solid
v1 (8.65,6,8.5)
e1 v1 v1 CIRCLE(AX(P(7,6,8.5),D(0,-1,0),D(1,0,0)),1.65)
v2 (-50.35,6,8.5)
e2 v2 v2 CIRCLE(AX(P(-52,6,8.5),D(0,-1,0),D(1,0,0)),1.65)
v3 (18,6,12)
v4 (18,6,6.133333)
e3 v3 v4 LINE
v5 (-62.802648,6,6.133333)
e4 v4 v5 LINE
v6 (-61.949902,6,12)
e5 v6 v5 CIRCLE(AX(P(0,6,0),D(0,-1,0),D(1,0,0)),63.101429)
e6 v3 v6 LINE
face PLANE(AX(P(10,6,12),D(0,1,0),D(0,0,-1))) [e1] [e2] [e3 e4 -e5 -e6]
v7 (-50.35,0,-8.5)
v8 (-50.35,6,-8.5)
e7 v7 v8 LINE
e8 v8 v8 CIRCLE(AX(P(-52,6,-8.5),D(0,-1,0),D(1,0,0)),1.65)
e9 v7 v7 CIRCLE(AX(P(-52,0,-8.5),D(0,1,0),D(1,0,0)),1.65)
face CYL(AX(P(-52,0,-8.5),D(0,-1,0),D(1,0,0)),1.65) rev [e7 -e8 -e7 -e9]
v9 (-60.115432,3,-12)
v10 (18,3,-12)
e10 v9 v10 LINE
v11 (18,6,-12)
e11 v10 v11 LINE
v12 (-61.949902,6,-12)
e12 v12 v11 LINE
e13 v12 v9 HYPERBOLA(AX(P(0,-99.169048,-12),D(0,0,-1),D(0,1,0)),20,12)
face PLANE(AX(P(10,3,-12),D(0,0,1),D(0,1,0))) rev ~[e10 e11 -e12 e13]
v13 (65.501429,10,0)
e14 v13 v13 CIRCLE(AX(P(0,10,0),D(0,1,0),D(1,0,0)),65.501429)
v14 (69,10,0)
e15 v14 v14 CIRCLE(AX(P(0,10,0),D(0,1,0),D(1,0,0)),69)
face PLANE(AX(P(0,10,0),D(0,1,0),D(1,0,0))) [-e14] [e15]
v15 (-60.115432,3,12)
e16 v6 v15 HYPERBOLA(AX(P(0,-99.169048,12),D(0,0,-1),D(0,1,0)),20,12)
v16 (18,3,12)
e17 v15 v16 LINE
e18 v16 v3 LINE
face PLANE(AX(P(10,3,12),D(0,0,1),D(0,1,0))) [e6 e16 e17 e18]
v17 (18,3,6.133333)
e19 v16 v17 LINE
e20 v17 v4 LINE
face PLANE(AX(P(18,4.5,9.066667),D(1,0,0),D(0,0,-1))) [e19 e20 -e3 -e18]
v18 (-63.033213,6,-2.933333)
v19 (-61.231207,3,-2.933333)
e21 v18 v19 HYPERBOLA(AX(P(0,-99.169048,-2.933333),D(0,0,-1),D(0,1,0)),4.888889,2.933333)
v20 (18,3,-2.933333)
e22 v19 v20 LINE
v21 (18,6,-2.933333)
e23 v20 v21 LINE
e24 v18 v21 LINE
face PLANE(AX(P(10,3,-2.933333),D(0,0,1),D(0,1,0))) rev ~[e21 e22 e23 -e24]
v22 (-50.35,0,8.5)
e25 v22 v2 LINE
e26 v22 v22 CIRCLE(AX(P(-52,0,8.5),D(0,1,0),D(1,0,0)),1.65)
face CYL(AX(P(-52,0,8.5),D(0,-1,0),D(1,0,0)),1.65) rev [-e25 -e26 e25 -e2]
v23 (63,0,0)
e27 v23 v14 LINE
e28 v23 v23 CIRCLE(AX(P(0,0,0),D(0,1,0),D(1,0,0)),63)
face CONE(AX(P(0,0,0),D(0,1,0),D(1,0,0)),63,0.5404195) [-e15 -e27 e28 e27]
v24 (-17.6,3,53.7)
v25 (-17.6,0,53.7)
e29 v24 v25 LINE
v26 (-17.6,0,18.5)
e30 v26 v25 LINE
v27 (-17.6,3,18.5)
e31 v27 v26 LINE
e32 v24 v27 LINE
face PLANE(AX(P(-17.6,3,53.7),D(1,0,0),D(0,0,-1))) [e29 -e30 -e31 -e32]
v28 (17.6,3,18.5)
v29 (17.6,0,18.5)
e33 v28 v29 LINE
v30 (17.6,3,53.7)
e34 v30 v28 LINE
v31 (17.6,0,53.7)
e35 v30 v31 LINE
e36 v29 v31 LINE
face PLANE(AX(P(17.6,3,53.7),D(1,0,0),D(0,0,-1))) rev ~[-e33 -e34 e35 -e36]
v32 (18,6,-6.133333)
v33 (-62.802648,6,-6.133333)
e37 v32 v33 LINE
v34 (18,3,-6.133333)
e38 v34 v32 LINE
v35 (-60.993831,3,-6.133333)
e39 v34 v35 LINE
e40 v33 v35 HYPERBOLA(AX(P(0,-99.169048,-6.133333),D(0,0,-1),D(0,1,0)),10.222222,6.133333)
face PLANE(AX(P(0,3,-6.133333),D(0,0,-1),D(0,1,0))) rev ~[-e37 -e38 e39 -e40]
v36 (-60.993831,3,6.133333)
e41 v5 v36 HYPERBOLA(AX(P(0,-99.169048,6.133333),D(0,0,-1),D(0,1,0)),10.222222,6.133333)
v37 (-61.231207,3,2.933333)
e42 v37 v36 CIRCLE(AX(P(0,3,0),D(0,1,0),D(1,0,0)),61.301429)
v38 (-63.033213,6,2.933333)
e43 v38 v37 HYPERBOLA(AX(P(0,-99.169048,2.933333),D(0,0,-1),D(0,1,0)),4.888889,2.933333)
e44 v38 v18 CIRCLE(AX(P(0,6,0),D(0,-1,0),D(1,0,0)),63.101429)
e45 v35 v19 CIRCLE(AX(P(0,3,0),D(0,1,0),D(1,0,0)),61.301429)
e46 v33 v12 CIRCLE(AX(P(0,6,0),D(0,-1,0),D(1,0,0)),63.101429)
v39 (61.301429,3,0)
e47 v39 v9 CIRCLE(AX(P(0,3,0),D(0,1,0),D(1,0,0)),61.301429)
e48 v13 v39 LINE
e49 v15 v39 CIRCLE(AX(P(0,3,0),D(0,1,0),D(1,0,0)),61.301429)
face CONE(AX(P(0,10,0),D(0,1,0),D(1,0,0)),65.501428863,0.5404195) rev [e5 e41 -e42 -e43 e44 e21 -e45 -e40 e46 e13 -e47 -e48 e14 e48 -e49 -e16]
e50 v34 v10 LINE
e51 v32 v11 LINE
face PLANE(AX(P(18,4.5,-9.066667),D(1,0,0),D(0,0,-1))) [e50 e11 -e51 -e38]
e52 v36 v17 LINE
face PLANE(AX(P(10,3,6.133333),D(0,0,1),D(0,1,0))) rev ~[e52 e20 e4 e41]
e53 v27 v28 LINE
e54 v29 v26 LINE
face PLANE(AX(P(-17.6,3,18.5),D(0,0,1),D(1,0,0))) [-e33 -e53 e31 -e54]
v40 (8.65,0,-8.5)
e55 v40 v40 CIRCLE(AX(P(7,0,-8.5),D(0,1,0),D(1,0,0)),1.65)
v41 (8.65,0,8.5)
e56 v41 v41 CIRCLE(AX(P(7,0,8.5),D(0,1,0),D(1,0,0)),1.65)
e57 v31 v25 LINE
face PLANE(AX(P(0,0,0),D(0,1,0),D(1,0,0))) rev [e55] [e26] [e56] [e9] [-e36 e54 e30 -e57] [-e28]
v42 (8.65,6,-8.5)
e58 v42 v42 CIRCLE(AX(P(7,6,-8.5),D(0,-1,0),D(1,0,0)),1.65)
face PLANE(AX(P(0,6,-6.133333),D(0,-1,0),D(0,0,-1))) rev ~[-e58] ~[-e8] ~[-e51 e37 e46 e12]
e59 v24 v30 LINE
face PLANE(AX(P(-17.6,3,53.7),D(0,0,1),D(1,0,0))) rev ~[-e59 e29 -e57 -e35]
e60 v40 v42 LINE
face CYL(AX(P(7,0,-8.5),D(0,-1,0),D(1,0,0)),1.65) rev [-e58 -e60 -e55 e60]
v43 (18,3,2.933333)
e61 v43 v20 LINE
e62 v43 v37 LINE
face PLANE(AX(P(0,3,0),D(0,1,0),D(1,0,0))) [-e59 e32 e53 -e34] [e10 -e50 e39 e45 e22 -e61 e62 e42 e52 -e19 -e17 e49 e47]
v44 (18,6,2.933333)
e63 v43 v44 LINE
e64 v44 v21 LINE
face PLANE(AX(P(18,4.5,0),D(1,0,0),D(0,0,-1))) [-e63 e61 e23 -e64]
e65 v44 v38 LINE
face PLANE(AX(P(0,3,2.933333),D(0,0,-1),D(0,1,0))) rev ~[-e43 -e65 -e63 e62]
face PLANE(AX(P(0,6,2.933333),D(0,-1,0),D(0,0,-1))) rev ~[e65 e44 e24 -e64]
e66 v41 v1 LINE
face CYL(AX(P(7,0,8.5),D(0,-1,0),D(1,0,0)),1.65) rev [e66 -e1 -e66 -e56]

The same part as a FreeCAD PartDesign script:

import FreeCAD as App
import Part
import Sketcher


def add_polygon(sketch, points):
    """Adds a closed chain of lines whose ends are joined by coincident constraints."""
    first, n = sketch.GeometryCount, len(points)
    for a, b in zip(points, points[1:] + points[:1]):
        sketch.addGeometry(Part.LineSegment(App.Vector(*a, 0), App.Vector(*b, 0)), False)
    for i in range(n):
        sketch.addConstraint(Sketcher.Constraint("Coincident", first + i, 2, first + (i + 1) % n, 1))

doc = App.newDocument("Part")
body = doc.addObject("PartDesign::Body", "Body")

# Sketch on XY plane
sketch1 = body.newObject("Sketcher::SketchObject", "Sketch")
sketch1.AttachmentSupport = (doc.getObject("XY_Plane"), [""])
sketch1.MapMode = "FlatFace"
add_polygon(sketch1, [(0, 0), (63, 0), (69, 10), (65.5, 10), (61.3, 3), (0, 3)])  # lines 0-5
sketch1.addConstraint(Sketcher.Constraint("Horizontal", 0))
sketch1.addConstraint(Sketcher.Constraint("Horizontal", 2))
sketch1.addConstraint(Sketcher.Constraint("Horizontal", 4))
sketch1.addConstraint(Sketcher.Constraint("Vertical", 5))
sketch1.addConstraint(Sketcher.Constraint("Coincident", 5, 2, -1, 1))
sketch1.addConstraint(Sketcher.Constraint("Parallel", 1, 3))
sketch1.addConstraint(Sketcher.Constraint("DistanceX", 0, 1, 0, 2, 63.0))
sketch1.addConstraint(Sketcher.Constraint("DistanceY", 5, 2, 5, 1, 3.0))
sketch1.addConstraint(Sketcher.Constraint("DistanceX", -1, 1, 1, 2, 69.0))
sketch1.addConstraint(Sketcher.Constraint("DistanceY", -1, 1, 1, 2, 10.0))
sketch1.addConstraint(Sketcher.Constraint("DistanceX", 2, 2, 2, 1, 3.498571))
revolution = body.newObject("PartDesign::Revolution", "Revolution")
revolution.Profile = sketch1
revolution.ReferenceAxis = (sketch1, ["V_Axis"])
revolution.Angle = 360

# Sketch on XZ plane
sketch2 = body.newObject("Sketcher::SketchObject", "Sketch001")
sketch2.AttachmentSupport = (doc.getObject("XZ_Plane"), [""])
sketch2.MapMode = "FlatFace"
sketch2.AttachmentOffset = App.Placement(App.Vector(0, 0, -3), App.Rotation())
add_polygon(sketch2, [(-18, 18), (-18, 54), (18, 54), (18, 18)])  # lines 0-3
sketch2.addConstraint(Sketcher.Constraint("Vertical", 0))
sketch2.addConstraint(Sketcher.Constraint("Horizontal", 1))
sketch2.addConstraint(Sketcher.Constraint("Vertical", 2))
sketch2.addConstraint(Sketcher.Constraint("Horizontal", 3))
sketch2.addConstraint(Sketcher.Constraint("Equal", 3, 0))
sketch2.addConstraint(Sketcher.Constraint("DistanceX", 1, 1, 1, 2, 35.2))
sketch2.addConstraint(Sketcher.Constraint("DistanceX", 0, 2, -1, 1, 17.6))
sketch2.addConstraint(Sketcher.Constraint("DistanceY", -1, 1, 0, 2, 53.7))
pocket1 = body.newObject("PartDesign::Pocket", "Pocket")
pocket1.Profile = sketch2
pocket1.Type = "ThroughAll"
pocket1.Reversed = True

# Sketch on YZ plane
sketch3 = body.newObject("Sketcher::SketchObject", "Sketch002")
sketch3.AttachmentSupport = (doc.getObject("YZ_Plane"), [""])
sketch3.MapMode = "FlatFace"
add_polygon(sketch3, [(6, 12), (3, 12), (3, 6.1), (6, 6.1)])  # lines 0-3
add_polygon(sketch3, [(6, 2.9), (3, 2.9), (3, -2.9), (6, -2.9)])  # lines 4-7
add_polygon(sketch3, [(6, -6.1), (3, -6.1), (3, -12), (6, -12)])  # lines 8-11
sketch3.addConstraint(Sketcher.Constraint("Horizontal", 0))
sketch3.addConstraint(Sketcher.Constraint("Vertical", 1))
sketch3.addConstraint(Sketcher.Constraint("Horizontal", 2))
sketch3.addConstraint(Sketcher.Constraint("Vertical", 3))
sketch3.addConstraint(Sketcher.Constraint("Horizontal", 4))
sketch3.addConstraint(Sketcher.Constraint("Vertical", 5))
sketch3.addConstraint(Sketcher.Constraint("Horizontal", 6))
sketch3.addConstraint(Sketcher.Constraint("Vertical", 7))
sketch3.addConstraint(Sketcher.Constraint("Horizontal", 8))
sketch3.addConstraint(Sketcher.Constraint("Vertical", 9))
sketch3.addConstraint(Sketcher.Constraint("Horizontal", 10))
sketch3.addConstraint(Sketcher.Constraint("Vertical", 11))
sketch3.addConstraint(Sketcher.Constraint("Symmetric", 1, 2, 8, 2, -1))
sketch3.addConstraint(Sketcher.Constraint("Symmetric", 3, 2, 10, 2, -1))
sketch3.addConstraint(Sketcher.Constraint("Vertical", 1, 2, 4, 2))
sketch3.addConstraint(Sketcher.Constraint("Vertical", 3, 2, 6, 2))
sketch3.addConstraint(Sketcher.Constraint("Equal", 3, 5))
sketch3.addConstraint(Sketcher.Constraint("DistanceX", 0, 2, 0, 1, 3.0))
sketch3.addConstraint(Sketcher.Constraint("DistanceX", -1, 1, 0, 2, 3.0))
sketch3.addConstraint(Sketcher.Constraint("DistanceY", -1, 1, 0, 2, 12.0))
sketch3.addConstraint(Sketcher.Constraint("DistanceY", 4, 2, 1, 2, 3.2))
sketch3.addConstraint(Sketcher.Constraint("DistanceY", 8, 2, 5, 2, 3.2))
pad1 = body.newObject("PartDesign::Pad", "Pad")
pad1.Profile = sketch3
pad1.Type = "TwoLengths"
pad1.Length = 10
pad1.Length2 = 63.5

# Sketch on XZ plane
sketch4 = body.newObject("Sketcher::SketchObject", "Sketch003")
sketch4.AttachmentSupport = (doc.getObject("XZ_Plane"), [""])
sketch4.MapMode = "FlatFace"
sketch4.addGeometry(Part.Circle(App.Vector(7, 8.5, 0), App.Vector(0, 0, 1), 1.6), False)
sketch4.addGeometry(Part.Circle(App.Vector(7, -8.5, 0), App.Vector(0, 0, 1), 1.6), False)
sketch4.addGeometry(Part.Circle(App.Vector(-52, -8.5, 0), App.Vector(0, 0, 1), 1.6), False)
sketch4.addGeometry(Part.Circle(App.Vector(-52, 8.5, 0), App.Vector(0, 0, 1), 1.6), False)
sketch4.addConstraint(Sketcher.Constraint("Equal", 0, 1))
sketch4.addConstraint(Sketcher.Constraint("Equal", 1, 2))
sketch4.addConstraint(Sketcher.Constraint("Equal", 2, 3))
sketch4.addConstraint(Sketcher.Constraint("Symmetric", 0, 3, 1, 3, -1))
sketch4.addConstraint(Sketcher.Constraint("Symmetric", 2, 3, 3, 3, -1))
sketch4.addConstraint(Sketcher.Constraint("Horizontal", 1, 3, 2, 3))
sketch4.addConstraint(Sketcher.Constraint("Diameter", 0, 3.3))
sketch4.addConstraint(Sketcher.Constraint("DistanceX", -1, 1, 0, 3, 7.0))
sketch4.addConstraint(Sketcher.Constraint("DistanceX", 2, 3, -1, 1, 52.0))
sketch4.addConstraint(Sketcher.Constraint("DistanceY", 1, 3, 0, 3, 17.0))
pocket2 = body.newObject("PartDesign::Pocket", "Pocket001")
pocket2.Profile = sketch4
pocket2.Type = "ThroughAll"

# Sketch on YZ plane
sketch5 = body.newObject("Sketcher::SketchObject", "Sketch004")
sketch5.AttachmentSupport = (doc.getObject("YZ_Plane"), [""])
sketch5.MapMode = "FlatFace"
sketch5.AttachmentOffset = App.Placement(App.Vector(0, 0, 10), App.Rotation())
add_polygon(sketch5, [(6, 12), (3, 12), (3, 6.1), (6, 6.1)])  # lines 0-3
add_polygon(sketch5, [(6, 2.9), (3, 2.9), (3, -2.9), (6, -2.9)])  # lines 4-7
add_polygon(sketch5, [(6, -6.1), (3, -6.1), (3, -12), (6, -12)])  # lines 8-11
sketch5.addConstraint(Sketcher.Constraint("Horizontal", 0))
sketch5.addConstraint(Sketcher.Constraint("Vertical", 1))
sketch5.addConstraint(Sketcher.Constraint("Horizontal", 2))
sketch5.addConstraint(Sketcher.Constraint("Vertical", 3))
sketch5.addConstraint(Sketcher.Constraint("Horizontal", 4))
sketch5.addConstraint(Sketcher.Constraint("Vertical", 5))
sketch5.addConstraint(Sketcher.Constraint("Horizontal", 6))
sketch5.addConstraint(Sketcher.Constraint("Vertical", 7))
sketch5.addConstraint(Sketcher.Constraint("Horizontal", 8))
sketch5.addConstraint(Sketcher.Constraint("Vertical", 9))
sketch5.addConstraint(Sketcher.Constraint("Horizontal", 10))
sketch5.addConstraint(Sketcher.Constraint("Vertical", 11))
sketch5.addConstraint(Sketcher.Constraint("Symmetric", 1, 2, 8, 2, -1))
sketch5.addConstraint(Sketcher.Constraint("Symmetric", 3, 2, 10, 2, -1))
sketch5.addConstraint(Sketcher.Constraint("Vertical", 1, 2, 4, 2))
sketch5.addConstraint(Sketcher.Constraint("Vertical", 3, 2, 6, 2))
sketch5.addConstraint(Sketcher.Constraint("Equal", 3, 5))
sketch5.addConstraint(Sketcher.Constraint("DistanceX", 0, 2, 0, 1, 3.0))
sketch5.addConstraint(Sketcher.Constraint("DistanceX", -1, 1, 0, 2, 3.0))
sketch5.addConstraint(Sketcher.Constraint("DistanceY", -1, 1, 0, 2, 12.0))
sketch5.addConstraint(Sketcher.Constraint("DistanceY", 4, 2, 1, 2, 3.2))
sketch5.addConstraint(Sketcher.Constraint("DistanceY", 8, 2, 5, 2, 3.2))
pad2 = body.newObject("PartDesign::Pad", "Pad001")
pad2.Profile = sketch5
pad2.Length = 8

doc.recompute()
